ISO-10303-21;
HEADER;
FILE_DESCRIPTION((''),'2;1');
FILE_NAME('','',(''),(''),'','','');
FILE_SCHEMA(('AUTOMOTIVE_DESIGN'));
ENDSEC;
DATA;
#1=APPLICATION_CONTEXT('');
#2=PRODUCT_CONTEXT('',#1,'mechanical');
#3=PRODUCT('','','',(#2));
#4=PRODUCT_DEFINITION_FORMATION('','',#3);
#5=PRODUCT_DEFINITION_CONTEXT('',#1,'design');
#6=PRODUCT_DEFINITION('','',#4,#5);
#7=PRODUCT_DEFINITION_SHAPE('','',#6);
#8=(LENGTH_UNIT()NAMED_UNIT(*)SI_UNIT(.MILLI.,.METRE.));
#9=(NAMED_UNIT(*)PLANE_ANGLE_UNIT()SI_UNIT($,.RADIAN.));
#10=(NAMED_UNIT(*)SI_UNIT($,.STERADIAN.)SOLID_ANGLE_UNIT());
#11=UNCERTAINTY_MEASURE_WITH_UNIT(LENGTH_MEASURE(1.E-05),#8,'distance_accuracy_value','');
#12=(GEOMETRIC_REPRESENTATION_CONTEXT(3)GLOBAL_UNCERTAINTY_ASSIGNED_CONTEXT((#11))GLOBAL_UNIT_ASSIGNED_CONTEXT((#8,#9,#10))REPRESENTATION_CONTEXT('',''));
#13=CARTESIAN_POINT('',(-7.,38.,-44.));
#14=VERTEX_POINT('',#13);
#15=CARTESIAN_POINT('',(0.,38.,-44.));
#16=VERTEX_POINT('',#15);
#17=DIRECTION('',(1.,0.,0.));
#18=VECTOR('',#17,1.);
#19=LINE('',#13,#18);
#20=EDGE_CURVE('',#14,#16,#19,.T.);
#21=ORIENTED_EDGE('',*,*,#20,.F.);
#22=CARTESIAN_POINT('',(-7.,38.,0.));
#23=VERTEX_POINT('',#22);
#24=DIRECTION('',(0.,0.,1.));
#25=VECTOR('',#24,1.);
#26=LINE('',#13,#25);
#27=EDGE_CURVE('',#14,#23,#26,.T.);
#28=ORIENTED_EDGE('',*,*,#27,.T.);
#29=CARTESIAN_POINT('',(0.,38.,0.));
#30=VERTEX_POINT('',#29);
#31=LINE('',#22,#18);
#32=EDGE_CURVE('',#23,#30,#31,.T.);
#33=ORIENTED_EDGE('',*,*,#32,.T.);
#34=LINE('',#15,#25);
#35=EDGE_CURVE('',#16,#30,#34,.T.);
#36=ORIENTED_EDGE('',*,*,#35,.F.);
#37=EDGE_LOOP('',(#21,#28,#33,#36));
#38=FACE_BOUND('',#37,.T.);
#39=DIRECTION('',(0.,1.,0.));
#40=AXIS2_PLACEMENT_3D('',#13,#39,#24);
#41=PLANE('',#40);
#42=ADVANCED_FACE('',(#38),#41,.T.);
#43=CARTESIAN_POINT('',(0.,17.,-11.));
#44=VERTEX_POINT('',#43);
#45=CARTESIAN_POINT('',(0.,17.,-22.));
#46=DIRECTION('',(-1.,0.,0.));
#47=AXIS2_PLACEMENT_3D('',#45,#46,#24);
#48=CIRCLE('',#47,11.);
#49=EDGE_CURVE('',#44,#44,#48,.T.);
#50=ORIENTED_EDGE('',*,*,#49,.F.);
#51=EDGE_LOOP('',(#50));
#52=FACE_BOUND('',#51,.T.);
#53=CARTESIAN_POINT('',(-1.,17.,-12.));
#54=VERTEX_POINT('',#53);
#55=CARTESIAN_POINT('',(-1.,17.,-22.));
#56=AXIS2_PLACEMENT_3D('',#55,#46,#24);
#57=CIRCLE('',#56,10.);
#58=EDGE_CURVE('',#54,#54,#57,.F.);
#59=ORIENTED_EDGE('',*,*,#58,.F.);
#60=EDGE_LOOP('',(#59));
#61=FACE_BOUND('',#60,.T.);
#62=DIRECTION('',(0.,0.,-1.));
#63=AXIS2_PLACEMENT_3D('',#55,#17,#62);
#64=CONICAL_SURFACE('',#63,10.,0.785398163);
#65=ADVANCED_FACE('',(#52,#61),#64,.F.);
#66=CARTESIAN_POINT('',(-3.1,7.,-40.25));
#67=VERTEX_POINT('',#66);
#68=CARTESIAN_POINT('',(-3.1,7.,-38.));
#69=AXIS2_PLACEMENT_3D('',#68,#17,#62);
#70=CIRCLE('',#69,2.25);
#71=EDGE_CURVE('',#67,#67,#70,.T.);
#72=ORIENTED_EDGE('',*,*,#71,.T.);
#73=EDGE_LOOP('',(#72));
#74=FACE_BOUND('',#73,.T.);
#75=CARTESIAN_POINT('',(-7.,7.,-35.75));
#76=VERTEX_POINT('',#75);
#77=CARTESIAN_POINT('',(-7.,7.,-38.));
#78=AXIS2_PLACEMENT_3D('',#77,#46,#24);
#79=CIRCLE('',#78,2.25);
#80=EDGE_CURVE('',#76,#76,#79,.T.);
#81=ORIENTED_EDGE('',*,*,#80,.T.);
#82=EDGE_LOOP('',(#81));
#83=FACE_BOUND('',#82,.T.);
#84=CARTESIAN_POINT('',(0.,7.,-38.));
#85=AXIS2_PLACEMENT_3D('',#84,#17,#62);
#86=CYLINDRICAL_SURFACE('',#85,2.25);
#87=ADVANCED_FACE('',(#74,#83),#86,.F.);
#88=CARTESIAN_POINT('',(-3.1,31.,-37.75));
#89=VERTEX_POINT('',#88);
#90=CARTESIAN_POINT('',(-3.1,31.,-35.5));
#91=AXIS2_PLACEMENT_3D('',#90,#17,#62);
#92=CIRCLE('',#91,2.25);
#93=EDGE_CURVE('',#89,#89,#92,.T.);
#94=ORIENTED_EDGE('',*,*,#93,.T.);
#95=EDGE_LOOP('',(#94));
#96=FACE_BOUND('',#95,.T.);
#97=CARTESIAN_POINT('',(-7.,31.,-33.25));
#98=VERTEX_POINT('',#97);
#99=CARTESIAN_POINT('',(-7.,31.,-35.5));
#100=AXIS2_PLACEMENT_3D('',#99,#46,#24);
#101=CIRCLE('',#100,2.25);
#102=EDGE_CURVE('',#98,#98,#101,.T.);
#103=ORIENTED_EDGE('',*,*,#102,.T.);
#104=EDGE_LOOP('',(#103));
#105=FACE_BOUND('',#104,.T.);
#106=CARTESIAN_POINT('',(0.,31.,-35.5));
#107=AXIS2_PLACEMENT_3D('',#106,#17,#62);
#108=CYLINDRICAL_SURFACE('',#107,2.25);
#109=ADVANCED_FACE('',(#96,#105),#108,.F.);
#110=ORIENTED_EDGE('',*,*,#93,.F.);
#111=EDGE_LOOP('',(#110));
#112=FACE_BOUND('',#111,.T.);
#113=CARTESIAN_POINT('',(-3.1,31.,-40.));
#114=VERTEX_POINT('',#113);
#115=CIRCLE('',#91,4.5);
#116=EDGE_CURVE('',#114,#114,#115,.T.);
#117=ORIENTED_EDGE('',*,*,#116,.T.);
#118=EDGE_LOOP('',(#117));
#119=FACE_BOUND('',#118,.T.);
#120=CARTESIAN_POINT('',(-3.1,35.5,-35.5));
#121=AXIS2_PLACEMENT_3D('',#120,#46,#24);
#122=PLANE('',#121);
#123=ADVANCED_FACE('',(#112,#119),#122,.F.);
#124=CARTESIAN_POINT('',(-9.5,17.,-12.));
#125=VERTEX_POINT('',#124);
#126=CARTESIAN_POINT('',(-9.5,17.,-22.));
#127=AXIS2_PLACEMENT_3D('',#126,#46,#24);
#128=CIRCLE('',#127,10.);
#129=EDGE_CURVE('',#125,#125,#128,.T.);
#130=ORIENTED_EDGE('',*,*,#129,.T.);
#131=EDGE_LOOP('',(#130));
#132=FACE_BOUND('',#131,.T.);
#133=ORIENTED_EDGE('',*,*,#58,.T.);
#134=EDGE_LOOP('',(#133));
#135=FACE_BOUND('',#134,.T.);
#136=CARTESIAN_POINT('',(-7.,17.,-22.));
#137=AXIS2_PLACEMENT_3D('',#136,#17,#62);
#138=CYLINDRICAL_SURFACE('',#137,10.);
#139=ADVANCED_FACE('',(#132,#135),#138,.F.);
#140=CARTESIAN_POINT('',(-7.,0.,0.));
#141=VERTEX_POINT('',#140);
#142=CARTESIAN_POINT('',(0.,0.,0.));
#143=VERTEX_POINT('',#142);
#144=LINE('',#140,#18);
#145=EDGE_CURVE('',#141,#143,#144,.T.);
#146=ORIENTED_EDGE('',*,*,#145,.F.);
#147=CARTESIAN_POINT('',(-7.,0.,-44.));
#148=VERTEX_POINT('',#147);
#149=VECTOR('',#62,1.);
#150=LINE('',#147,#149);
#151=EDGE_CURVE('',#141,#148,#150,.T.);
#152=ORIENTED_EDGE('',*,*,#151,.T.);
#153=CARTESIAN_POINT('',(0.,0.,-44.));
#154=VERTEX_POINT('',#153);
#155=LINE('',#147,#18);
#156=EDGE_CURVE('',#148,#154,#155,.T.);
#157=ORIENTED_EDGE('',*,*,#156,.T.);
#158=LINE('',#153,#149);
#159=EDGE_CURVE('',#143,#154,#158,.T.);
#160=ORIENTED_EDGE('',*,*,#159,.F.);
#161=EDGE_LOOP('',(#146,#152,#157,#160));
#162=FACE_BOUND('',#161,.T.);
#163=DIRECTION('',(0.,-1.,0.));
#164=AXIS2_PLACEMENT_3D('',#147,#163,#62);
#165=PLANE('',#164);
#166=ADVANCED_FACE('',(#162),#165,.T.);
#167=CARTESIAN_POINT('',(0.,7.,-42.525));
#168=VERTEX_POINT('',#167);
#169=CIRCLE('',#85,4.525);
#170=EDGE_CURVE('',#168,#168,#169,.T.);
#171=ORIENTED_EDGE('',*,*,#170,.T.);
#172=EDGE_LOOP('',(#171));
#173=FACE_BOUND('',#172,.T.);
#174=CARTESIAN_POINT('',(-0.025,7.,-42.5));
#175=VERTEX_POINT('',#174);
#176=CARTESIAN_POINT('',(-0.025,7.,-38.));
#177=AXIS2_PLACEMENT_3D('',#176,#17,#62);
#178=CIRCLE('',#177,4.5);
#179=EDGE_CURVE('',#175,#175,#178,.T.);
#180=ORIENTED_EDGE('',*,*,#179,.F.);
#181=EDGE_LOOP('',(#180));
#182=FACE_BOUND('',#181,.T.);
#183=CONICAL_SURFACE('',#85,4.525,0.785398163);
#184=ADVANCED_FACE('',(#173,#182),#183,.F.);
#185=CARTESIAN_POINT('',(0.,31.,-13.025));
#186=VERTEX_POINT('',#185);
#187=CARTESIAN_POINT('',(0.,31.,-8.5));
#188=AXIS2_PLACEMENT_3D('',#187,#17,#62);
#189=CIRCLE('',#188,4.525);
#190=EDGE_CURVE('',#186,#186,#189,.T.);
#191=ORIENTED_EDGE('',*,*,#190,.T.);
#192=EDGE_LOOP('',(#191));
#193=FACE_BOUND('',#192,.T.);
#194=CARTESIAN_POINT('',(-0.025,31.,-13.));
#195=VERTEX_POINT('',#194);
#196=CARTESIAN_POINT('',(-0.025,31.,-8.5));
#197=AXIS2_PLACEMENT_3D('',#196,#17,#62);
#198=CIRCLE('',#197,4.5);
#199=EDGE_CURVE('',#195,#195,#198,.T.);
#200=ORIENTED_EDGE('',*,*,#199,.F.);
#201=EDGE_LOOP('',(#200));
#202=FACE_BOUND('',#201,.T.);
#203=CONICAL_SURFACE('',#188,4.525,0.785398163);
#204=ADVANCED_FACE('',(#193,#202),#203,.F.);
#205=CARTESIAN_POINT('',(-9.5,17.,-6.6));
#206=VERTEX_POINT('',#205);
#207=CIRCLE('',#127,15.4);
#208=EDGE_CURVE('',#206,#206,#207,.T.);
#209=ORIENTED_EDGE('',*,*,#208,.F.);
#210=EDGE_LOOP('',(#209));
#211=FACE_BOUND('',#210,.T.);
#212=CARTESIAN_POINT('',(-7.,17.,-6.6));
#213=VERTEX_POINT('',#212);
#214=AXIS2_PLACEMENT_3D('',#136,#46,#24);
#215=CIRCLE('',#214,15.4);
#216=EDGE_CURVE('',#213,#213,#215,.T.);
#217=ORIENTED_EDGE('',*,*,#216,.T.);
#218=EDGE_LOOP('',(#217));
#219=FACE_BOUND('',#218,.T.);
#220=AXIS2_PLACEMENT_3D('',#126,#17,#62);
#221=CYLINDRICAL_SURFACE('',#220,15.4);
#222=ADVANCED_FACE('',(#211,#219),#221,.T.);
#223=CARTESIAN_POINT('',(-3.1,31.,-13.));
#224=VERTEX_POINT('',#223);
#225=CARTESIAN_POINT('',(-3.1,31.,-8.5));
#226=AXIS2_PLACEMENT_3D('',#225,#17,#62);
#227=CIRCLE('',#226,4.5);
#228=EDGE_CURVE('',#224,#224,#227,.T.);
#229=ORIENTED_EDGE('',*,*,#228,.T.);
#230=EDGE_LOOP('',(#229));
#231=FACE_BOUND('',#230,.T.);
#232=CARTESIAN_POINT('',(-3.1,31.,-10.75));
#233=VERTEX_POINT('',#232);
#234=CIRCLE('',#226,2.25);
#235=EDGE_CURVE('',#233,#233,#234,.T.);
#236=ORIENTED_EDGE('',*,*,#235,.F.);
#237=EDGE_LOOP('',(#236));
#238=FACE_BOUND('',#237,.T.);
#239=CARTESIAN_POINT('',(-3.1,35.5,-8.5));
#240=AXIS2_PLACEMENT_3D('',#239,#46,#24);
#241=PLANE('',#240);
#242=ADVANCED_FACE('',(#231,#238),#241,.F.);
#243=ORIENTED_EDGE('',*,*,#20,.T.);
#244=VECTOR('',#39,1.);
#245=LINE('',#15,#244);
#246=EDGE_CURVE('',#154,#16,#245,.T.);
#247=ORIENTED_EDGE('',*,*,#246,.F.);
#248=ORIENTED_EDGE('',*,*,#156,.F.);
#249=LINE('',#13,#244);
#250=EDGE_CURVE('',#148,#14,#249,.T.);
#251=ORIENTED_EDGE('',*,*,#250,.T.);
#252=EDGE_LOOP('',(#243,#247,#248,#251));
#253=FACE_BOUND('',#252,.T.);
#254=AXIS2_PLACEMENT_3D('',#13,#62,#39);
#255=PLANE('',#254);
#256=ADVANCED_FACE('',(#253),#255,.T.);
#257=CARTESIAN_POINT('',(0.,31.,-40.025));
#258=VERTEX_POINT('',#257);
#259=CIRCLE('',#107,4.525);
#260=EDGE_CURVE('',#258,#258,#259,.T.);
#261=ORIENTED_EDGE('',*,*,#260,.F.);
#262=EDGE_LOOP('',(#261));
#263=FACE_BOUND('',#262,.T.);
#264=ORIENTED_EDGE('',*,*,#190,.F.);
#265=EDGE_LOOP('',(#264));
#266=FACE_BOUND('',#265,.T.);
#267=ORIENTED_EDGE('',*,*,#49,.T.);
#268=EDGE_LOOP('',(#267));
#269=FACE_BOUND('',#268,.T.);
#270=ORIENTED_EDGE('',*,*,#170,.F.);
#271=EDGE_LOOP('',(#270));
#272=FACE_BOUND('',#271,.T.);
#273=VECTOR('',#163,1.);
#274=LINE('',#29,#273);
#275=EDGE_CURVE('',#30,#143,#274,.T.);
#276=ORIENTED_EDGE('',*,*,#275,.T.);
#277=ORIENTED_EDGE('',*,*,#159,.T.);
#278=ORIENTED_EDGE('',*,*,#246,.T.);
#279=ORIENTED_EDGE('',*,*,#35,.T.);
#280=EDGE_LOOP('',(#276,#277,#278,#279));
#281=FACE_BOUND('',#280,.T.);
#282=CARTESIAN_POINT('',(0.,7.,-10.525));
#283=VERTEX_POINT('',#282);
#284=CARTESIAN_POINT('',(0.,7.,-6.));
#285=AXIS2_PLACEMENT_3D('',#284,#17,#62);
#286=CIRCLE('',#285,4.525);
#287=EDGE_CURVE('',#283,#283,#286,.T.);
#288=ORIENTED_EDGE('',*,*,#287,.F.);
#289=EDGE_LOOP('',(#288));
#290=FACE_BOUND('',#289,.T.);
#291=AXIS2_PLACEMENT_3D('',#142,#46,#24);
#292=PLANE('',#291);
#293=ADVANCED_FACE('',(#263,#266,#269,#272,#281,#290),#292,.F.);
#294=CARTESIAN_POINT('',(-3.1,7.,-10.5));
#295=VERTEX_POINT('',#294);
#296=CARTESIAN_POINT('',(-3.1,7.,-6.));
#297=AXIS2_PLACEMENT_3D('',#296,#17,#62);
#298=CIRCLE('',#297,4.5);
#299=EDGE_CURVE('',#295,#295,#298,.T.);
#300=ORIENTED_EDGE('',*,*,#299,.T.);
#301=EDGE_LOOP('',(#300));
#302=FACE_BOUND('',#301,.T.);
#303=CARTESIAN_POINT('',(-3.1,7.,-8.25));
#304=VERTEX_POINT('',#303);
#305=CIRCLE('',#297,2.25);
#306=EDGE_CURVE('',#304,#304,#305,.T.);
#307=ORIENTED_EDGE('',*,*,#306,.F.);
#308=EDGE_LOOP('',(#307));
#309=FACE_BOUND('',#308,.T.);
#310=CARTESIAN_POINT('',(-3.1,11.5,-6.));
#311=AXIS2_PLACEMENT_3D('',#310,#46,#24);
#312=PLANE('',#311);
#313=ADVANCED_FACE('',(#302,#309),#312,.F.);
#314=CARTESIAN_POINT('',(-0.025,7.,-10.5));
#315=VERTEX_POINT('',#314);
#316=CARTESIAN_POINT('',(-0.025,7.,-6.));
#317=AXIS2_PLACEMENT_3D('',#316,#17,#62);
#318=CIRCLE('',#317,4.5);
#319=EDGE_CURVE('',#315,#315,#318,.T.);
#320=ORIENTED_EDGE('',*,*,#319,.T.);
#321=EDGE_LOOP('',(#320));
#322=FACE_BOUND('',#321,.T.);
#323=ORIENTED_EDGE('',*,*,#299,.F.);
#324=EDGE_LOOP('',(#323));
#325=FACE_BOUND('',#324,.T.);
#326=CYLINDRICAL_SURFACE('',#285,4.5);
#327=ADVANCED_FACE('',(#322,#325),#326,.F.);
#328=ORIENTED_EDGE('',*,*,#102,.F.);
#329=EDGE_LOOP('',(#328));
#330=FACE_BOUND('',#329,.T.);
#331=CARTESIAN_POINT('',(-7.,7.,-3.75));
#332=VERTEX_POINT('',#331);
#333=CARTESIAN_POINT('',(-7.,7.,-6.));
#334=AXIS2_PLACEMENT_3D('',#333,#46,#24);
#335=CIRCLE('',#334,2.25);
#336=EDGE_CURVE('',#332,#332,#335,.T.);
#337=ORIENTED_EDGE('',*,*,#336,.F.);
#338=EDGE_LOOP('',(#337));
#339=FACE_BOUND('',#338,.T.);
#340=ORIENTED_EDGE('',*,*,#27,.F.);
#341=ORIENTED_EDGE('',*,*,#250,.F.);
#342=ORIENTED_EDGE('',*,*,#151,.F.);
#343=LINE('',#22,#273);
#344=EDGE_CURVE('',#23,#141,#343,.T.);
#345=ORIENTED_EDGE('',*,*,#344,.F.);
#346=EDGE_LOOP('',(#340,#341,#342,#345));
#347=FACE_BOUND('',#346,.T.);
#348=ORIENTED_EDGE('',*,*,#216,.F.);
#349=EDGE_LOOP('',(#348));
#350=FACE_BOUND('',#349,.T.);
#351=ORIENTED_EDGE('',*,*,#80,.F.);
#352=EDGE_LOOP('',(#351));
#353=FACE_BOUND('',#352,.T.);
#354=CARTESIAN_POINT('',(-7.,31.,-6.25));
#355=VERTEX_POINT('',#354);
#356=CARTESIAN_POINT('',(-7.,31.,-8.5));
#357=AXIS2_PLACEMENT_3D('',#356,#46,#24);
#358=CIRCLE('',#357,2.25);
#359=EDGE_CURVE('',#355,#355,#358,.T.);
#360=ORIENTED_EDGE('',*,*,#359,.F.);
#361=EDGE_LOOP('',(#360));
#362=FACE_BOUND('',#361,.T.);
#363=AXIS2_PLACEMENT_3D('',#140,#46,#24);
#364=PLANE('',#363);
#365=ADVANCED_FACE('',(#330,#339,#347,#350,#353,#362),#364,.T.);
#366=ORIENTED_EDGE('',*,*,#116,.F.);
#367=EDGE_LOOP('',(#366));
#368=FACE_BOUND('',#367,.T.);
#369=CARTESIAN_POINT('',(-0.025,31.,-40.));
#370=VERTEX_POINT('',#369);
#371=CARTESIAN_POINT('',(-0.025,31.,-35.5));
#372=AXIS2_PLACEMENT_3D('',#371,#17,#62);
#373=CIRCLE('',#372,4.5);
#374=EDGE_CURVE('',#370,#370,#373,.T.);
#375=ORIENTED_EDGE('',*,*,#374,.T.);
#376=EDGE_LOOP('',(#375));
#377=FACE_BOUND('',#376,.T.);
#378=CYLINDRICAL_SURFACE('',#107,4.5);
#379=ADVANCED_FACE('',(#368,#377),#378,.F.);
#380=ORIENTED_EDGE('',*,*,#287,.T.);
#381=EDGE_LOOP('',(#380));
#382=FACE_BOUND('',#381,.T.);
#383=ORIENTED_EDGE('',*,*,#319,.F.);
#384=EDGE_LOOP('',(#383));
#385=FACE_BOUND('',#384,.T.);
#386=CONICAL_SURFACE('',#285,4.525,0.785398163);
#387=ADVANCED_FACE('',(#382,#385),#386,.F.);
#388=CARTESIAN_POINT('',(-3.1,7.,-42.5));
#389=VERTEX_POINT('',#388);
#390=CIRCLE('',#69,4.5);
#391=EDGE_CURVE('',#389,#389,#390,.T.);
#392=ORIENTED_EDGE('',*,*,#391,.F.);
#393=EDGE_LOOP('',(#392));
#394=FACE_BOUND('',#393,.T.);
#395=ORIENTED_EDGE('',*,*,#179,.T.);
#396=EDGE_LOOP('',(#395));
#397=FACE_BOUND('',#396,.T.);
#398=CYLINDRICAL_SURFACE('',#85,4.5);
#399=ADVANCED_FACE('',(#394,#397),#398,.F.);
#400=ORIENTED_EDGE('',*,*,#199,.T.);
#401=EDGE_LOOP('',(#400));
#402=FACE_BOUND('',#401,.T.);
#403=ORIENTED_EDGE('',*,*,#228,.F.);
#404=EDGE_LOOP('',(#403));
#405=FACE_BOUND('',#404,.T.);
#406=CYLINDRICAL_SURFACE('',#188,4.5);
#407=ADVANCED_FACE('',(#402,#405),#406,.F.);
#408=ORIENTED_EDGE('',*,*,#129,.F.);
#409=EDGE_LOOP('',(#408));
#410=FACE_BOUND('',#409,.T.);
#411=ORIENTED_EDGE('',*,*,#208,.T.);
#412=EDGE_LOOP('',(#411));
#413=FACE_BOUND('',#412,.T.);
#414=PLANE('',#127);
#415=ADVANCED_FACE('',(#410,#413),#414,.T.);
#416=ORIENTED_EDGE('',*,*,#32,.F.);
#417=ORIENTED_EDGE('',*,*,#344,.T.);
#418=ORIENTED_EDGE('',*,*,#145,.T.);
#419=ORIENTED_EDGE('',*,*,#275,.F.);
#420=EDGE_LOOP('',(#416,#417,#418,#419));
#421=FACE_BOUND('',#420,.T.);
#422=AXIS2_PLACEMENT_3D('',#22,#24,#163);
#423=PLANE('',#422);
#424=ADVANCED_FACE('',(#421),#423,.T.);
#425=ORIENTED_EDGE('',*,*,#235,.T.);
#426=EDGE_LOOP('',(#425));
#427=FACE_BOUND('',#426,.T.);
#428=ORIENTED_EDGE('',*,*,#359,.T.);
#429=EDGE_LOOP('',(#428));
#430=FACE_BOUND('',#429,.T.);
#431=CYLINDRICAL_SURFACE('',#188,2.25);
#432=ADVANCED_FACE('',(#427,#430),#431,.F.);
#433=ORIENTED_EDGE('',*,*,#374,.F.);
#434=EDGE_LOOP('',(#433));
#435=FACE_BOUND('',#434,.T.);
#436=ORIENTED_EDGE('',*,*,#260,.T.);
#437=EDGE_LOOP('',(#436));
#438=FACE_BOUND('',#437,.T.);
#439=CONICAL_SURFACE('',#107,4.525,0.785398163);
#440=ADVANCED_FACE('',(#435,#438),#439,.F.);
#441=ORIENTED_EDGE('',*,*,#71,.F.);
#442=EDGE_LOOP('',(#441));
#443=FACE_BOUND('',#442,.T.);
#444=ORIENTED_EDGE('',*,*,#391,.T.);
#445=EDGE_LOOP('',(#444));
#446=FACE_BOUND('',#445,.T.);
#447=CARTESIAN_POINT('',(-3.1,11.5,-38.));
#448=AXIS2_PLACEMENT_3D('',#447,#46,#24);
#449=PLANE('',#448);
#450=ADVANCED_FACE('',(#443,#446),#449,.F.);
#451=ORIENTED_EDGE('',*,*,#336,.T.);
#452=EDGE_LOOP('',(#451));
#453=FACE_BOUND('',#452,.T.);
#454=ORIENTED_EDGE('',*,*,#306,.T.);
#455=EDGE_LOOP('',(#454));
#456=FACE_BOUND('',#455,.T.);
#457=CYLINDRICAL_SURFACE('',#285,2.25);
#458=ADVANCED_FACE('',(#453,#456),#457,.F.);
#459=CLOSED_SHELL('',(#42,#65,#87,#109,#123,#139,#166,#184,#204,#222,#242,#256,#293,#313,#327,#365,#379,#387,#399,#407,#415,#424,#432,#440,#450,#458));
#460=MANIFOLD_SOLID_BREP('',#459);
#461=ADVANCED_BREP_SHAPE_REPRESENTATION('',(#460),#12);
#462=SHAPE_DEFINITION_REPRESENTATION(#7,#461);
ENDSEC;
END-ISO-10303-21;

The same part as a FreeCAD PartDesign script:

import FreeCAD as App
import Part
import Sketcher
Q = App.Units.Quantity


def edges_at(feature, points):
    """Names of the edges that pass closest to the given points."""
    edges = feature.Shape.Edges
    near = lambda p: min(range(len(edges)), key=lambda i: edges[i].distToShape(Part.Vertex(*p))[0])
    return sorted({f"Edge{near(p) + 1}" for p in points})


def add_polygon(sketch, points):
    """Adds a closed chain of lines whose ends are joined by coincident constraints."""
    first, n = sketch.GeometryCount, len(points)
    for a, b in zip(points, points[1:] + points[:1]):
        sketch.addGeometry(Part.LineSegment(App.Vector(*a, 0), App.Vector(*b, 0)), False)
    for i in range(n):
        sketch.addConstraint(Sketcher.Constraint("Coincident", first + i, 2, first + (i + 1) % n, 1))

doc = App.newDocument("Part")
body = doc.addObject("PartDesign::Body", "Body")

sketch1 = doc.addObject("Sketcher::SketchObject", "Sketch")
body.addObject(sketch1)
sketch1.AttachmentSupport = (doc.YZ_Plane, [""])
sketch1.MapMode = "FlatFace"
add_polygon(sketch1, [(38, 0), (0, 0), (0, -44), (38, -44)])
sketch1.addGeometry(Part.Circle(App.Vector(17, -22, 0), App.Vector(0, 0, 1), 10), False)
sketch1.addConstraint(Sketcher.Constraint("Horizontal", 0))
sketch1.addConstraint(Sketcher.Constraint("Vertical", 1))
sketch1.addConstraint(Sketcher.Constraint("Horizontal", 2))
sketch1.addConstraint(Sketcher.Constraint("Vertical", 3))
sketch1.addConstraint(Sketcher.Constraint("Coincident", 0, 2, -1, 1))
sketch1.addConstraint(Sketcher.Constraint("Diameter", 4, 20.0))
sketch1.addConstraint(Sketcher.Constraint("DistanceX", 0, 2, 0, 1, 38.0))
sketch1.addConstraint(Sketcher.Constraint("DistanceY", 1, 2, 1, 1, 44.0))
sketch1.addConstraint(Sketcher.Constraint("DistanceX", -1, 1, 4, 3, 17.0))
sketch1.addConstraint(Sketcher.Constraint("DistanceY", 4, 3, -1, 1, 22.0))
pad1 = doc.addObject("PartDesign::Pad", "Pad")
body.addObject(pad1)
pad1.Profile = sketch1
pad1.Length = 7
pad1.Reversed = True

sketch2 = doc.addObject("Sketcher::SketchObject", "Sketch001")
body.addObject(sketch2)
sketch2.AttachmentSupport = (doc.YZ_Plane, [""])
sketch2.MapMode = "FlatFace"
sketch2.AttachmentOffset = App.Placement(App.Vector(0, 0, -7), App.Rotation())
sketch2.addGeometry(Part.Circle(App.Vector(17, -22, 0), App.Vector(0, 0, 1), 15), False)
sketch2.addGeometry(Part.Circle(App.Vector(17, -22, 0), App.Vector(0, 0, 1), 10), False)
sketch2.addConstraint(Sketcher.Constraint("Coincident", 1, 3, 0, 3))
sketch2.addConstraint(Sketcher.Constraint("Diameter", 1, 20.0))
sketch2.addConstraint(Sketcher.Constraint("Diameter", 0, 30.8))
sketch2.addConstraint(Sketcher.Constraint("DistanceX", -1, 1, 0, 3, 17.0))
sketch2.addConstraint(Sketcher.Constraint("DistanceY", 0, 3, -1, 1, 22.0))
pad2 = doc.addObject("PartDesign::Pad", "Pad001")
body.addObject(pad2)
pad2.Profile = sketch2
pad2.Length = 2.5
pad2.Reversed = True
doc.recompute()

chamfer = doc.addObject("PartDesign::Chamfer", "Chamfer")
body.addObject(chamfer)
chamfer.Base = (pad2, edges_at(pad2, [(0, 17, -12)]))
chamfer.Size = 1

sketch3 = doc.addObject("Sketcher::SketchObject", "Sketch002")
body.addObject(sketch3)
sketch3.AttachmentSupport = (doc.XZ_Plane, [""])
sketch3.MapMode = "FlatFace"
sketch3.AttachmentOffset = App.Placement(App.Vector(0, 0, -31), App.Rotation())
add_polygon(sketch3, [(-9.5, -8.5), (0, -8.5), (0, -13.025), (-0.025, -13), (-3.1, -13), (-3.1, -10.75), (-9.5, -10.75)])
sketch3.addGeometry(Part.LineSegment(App.Vector(0, -8.5, 0), App.Vector(-9.5, -8.5, 0)), True)
sketch3.addConstraint(Sketcher.Constraint("Horizontal", 0))
sketch3.addConstraint(Sketcher.Constraint("Vertical", 1))
sketch3.addConstraint(Sketcher.Constraint("Horizontal", 3))
sketch3.addConstraint(Sketcher.Constraint("Vertical", 4))
sketch3.addConstraint(Sketcher.Constraint("Horizontal", 5))
sketch3.addConstraint(Sketcher.Constraint("Vertical", 6))
sketch3.addConstraint(Sketcher.Constraint("Horizontal", 7))
sketch3.addConstraint(Sketcher.Constraint("Coincident", 7, 1, 0, 2))
sketch3.addConstraint(Sketcher.Constraint("PointOnObject", 0, 2, -2))
sketch3.addConstraint(Sketcher.Constraint("Vertical", 5, 2, 7, 2))
sketch3.addConstraint(Sketcher.Constraint("Equal", 4, 6))
sketch3.addConstraint(Sketcher.Constraint("Angle", 2, Q("135 deg")))
sketch3.addConstraint(Sketcher.Constraint("DistanceX", 0, 1, 0, 2, 9.5))
sketch3.addConstraint(Sketcher.Constraint("DistanceX", 5, 2, 5, 1, 6.4))
sketch3.addConstraint(Sketcher.Constraint("DistanceY", 2, 2, -1, 1, 13.0))
sketch3.addConstraint(Sketcher.Constraint("DistanceY", 4, 1, 4, 2, 2.25))
sketch3.addConstraint(Sketcher.Constraint("DistanceX", 3, 2, 3, 1, 3.075))
groove = doc.addObject("PartDesign::Groove", "Groove")
body.addObject(groove)
groove.Profile = sketch3
groove.ReferenceAxis = (sketch3, ["Axis0"])
groove.Angle = 360
doc.recompute()

linearpattern = doc.addObject("PartDesign::LinearPattern", "LinearPattern")
body.addObject(linearpattern)
linearpattern.Originals = [groove]
linearpattern.Direction = (doc.Z_Axis, [""])
linearpattern.Mode = "offset"
linearpattern.Offset = 27
linearpattern.Occurrences = 2
linearpattern.Reversed = True
body.Tip = linearpattern
doc.recompute()

datumline = doc.addObject("PartDesign::Line", "DatumLine")
body.addObject(datumline)
datumline.Placement = App.Placement(App.Vector(0, 0, 0), App.Rotation(App.Vector(0, 0, 1), App.Vector(0, -0.631087467, -0.775711679)))
linearpattern2 = doc.addObject("PartDesign::LinearPattern", "LinearPattern001")
body.addObject(linearpattern2)
linearpattern2.Originals = [groove]
linearpattern2.Direction = (datumline, [""])
linearpattern2.Mode = "offset"
linearpattern2.Offset = 38.029594
linearpattern2.Occurrences = 2
body.Tip = linearpattern2
doc.recompute()

datumline2 = doc.addObject("PartDesign::Line", "DatumLine001")
body.addObject(datumline2)
datumline2.Placement = App.Placement(App.Vector(0, 0, 0), App.Rotation(App.Vector(0, 0, 1), App.Vector(0, -0.994618409, 0.103606084)))
linearpattern3 = doc.addObject("PartDesign::LinearPattern", "LinearPattern002")
body.addObject(linearpattern3)
linearpattern3.Originals = [groove]
linearpattern3.Direction = (datumline2, [""])
linearpattern3.Mode = "offset"
linearpattern3.Offset = 24.129857
linearpattern3.Occurrences = 2
body.Tip = linearpattern3

doc.recompute()
